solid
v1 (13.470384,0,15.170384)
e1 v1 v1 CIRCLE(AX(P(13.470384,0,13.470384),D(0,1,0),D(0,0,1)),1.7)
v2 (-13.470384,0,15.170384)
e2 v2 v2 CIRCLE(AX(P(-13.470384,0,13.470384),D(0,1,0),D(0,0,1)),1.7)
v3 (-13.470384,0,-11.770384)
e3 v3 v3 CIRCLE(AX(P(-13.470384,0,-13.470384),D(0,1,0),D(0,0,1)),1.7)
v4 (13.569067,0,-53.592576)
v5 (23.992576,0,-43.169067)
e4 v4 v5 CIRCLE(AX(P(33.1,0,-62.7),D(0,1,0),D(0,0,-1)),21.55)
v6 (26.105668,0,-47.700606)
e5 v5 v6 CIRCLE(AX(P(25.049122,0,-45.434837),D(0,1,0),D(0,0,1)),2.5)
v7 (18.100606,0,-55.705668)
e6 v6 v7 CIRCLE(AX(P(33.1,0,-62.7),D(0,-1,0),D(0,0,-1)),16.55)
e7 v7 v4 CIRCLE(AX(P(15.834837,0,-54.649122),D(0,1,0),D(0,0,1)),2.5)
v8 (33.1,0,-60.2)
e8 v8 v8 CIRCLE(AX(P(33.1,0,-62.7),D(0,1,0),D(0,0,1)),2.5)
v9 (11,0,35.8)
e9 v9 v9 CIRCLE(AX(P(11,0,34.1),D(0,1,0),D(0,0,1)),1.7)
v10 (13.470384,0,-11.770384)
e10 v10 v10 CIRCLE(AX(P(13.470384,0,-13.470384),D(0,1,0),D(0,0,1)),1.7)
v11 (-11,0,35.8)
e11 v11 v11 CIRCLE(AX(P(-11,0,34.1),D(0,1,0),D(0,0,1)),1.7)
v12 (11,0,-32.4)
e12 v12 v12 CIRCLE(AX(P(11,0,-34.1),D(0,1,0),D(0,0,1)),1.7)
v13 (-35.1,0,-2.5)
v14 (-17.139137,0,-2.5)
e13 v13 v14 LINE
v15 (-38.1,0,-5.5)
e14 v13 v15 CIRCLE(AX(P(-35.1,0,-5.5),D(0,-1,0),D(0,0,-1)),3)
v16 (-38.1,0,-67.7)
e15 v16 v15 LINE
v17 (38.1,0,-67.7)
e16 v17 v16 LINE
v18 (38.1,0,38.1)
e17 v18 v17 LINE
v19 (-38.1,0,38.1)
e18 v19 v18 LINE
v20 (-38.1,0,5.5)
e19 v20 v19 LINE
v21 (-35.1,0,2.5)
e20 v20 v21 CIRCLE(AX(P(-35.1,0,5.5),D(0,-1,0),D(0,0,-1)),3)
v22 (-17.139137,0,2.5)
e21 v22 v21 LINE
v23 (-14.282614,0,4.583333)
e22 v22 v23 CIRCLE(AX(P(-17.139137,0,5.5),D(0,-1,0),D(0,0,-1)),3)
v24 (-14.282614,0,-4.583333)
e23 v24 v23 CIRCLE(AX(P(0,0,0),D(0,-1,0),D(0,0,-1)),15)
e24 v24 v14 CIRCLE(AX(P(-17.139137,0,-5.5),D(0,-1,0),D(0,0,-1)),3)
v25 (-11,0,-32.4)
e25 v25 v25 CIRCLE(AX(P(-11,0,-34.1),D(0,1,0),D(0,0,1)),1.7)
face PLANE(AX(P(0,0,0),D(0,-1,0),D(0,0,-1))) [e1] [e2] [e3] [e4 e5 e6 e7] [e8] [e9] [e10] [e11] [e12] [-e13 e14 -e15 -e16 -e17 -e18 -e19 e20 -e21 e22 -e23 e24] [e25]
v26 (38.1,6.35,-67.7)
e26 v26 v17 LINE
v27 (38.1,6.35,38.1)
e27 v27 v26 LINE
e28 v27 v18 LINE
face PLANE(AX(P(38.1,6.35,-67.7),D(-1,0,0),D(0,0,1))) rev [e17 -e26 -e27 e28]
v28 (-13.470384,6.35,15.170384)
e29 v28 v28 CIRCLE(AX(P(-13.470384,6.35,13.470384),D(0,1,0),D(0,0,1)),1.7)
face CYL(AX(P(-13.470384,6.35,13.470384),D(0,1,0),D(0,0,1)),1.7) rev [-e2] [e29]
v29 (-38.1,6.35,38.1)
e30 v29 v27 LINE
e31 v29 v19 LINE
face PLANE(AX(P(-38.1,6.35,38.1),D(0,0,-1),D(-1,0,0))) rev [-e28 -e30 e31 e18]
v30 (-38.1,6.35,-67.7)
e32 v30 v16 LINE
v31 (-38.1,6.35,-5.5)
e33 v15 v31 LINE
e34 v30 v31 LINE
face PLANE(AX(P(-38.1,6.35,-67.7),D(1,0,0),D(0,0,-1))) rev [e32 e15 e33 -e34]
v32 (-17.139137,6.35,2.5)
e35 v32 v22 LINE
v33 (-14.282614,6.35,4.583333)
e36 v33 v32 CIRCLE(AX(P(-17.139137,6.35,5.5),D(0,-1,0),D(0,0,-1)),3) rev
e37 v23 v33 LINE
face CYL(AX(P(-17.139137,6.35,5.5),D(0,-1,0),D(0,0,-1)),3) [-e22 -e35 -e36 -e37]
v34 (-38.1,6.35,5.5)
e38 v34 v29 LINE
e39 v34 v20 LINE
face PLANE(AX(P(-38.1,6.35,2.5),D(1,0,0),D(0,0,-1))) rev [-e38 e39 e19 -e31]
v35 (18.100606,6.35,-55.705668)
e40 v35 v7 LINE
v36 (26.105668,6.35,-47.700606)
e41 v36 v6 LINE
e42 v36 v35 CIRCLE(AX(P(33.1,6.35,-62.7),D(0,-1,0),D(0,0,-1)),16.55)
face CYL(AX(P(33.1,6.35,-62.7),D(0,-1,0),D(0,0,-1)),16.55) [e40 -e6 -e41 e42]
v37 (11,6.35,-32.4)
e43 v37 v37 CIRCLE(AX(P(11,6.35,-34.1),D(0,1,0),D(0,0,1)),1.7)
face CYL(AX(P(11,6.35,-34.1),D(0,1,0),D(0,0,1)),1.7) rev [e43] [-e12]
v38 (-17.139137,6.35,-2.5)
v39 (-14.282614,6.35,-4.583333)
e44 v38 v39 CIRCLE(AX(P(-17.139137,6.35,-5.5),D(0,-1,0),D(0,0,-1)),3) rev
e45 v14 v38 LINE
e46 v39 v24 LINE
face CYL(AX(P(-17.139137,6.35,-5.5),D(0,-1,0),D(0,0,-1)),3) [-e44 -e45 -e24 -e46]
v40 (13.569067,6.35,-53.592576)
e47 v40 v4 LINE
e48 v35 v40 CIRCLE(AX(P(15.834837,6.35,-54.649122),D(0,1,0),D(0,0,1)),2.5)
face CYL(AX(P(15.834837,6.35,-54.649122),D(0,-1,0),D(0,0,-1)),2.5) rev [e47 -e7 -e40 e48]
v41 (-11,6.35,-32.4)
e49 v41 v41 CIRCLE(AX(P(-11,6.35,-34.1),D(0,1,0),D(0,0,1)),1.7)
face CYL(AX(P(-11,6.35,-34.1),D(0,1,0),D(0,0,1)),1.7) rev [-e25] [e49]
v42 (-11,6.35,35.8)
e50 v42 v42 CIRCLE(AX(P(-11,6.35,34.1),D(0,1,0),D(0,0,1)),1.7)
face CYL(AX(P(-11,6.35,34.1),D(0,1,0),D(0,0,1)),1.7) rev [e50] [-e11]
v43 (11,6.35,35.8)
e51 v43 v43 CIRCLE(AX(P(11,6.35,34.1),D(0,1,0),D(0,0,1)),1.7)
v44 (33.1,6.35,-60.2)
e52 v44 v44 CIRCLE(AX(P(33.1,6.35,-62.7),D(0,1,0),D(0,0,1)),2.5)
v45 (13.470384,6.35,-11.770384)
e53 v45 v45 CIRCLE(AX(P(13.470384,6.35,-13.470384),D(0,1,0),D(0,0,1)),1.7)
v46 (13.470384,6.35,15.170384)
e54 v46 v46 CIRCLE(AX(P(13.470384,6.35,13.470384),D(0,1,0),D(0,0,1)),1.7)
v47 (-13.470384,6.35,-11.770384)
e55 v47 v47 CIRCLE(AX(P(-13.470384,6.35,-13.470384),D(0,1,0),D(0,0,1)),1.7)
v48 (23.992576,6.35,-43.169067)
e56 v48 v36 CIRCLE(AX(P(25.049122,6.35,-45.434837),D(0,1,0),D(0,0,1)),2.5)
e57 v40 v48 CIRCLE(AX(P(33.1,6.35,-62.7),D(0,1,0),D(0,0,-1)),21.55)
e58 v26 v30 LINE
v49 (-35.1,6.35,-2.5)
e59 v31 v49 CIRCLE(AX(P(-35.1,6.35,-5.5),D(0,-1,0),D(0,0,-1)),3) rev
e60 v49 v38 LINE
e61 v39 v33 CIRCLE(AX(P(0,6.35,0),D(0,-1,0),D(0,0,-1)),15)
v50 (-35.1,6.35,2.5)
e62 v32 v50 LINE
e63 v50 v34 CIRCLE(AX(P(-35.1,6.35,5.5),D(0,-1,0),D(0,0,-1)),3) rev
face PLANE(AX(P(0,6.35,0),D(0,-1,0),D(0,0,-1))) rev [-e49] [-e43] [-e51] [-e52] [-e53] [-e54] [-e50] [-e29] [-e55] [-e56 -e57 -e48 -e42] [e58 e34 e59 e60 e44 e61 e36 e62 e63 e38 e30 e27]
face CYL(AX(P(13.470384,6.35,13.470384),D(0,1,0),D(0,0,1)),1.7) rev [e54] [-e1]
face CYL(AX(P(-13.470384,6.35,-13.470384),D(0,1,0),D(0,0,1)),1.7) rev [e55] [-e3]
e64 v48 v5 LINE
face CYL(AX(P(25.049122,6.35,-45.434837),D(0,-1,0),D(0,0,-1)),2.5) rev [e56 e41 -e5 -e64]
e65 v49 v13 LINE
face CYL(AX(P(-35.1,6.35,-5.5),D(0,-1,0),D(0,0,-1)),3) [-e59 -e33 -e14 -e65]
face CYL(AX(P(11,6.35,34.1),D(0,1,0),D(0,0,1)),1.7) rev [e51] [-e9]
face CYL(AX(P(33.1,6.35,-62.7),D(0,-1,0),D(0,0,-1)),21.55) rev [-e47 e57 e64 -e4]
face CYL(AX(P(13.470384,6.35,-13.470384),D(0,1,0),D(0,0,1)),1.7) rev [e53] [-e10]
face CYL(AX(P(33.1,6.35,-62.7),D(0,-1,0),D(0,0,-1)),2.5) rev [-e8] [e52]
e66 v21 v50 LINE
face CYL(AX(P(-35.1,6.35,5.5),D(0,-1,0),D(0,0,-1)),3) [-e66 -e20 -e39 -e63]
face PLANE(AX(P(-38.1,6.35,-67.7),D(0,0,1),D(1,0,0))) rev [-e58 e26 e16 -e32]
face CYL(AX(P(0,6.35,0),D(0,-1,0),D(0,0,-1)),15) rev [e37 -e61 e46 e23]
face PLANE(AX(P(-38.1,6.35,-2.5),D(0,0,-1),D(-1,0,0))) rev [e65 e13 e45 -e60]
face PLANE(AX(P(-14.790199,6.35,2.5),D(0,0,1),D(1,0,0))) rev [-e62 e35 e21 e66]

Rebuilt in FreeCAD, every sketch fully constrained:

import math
import FreeCAD as App
import Part
import Sketcher
Q = App.Units.Quantity


def edges_at(feature, points):
    """Names of the edges that pass closest to the given points."""
    edges = feature.Shape.Edges
    near = lambda p: min(range(len(edges)), key=lambda i: edges[i].distToShape(Part.Vertex(*p))[0])
    return sorted({f"Edge{near(p) + 1}" for p in points})

doc = App.newDocument("Part")
body = doc.addObject("PartDesign::Body", "Body")

sketch1 = body.newObject("Sketcher::SketchObject", "Sketch")
sketch1.AttachmentSupport = (doc.getObject("XZ_Plane"), [""])
sketch1.MapMode = "FlatFace"
sketch1.addGeometry([
    Part.LineSegment(App.Vector(38.1, -67.7, 0), App.Vector(-38.1, -67.7, 0)),
    Part.LineSegment(App.Vector(-38.1, -67.7, 0), App.Vector(-38.1, -2.5, 0)),
    Part.LineSegment(App.Vector(-38.1, -2.5, 0), App.Vector(-14.790199, -2.5, 0)),
    Part.ArcOfCircle(Part.Circle(App.Vector(0, 0, 0), App.Vector(0, 0, 1), 15), math.radians(-170.405932), math.radians(170.405932)),
    Part.LineSegment(App.Vector(-14.790199, 2.5, 0), App.Vector(-38.1, 2.5, 0)),
    Part.LineSegment(App.Vector(-38.1, 2.5, 0), App.Vector(-38.1, 38.1, 0)),
    Part.LineSegment(App.Vector(-38.1, 38.1, 0), App.Vector(38.1, 38.1, 0)),
    Part.LineSegment(App.Vector(38.1, 38.1, 0), App.Vector(38.1, -67.7, 0)),
    Part.ArcOfCircle(Part.Circle(App.Vector(25.049122, -45.434837, 0), App.Vector(0, 0, 1), 2.5), math.radians(-65), math.radians(115)),
    Part.ArcOfCircle(Part.Circle(App.Vector(33.1, -62.7, 0), App.Vector(0, 0, 1), 21.55), math.radians(115), math.radians(155)),
    Part.ArcOfCircle(Part.Circle(App.Vector(15.834837, -54.649122, 0), App.Vector(0, 0, 1), 2.5), math.radians(155), math.radians(335)),
    Part.ArcOfCircle(Part.Circle(App.Vector(33.1, -62.7, 0), App.Vector(0, 0, 1), 16.55), math.radians(115), math.radians(155)),
    Part.Circle(App.Vector(33.1, -62.7, 0), App.Vector(0, 0, 1), 2.5),
], False)
sketch1.addConstraint([
    Sketcher.Constraint("Coincident", 0, 2, 1, 1),
    Sketcher.Constraint("Coincident", 1, 2, 2, 1),
    Sketcher.Constraint("Coincident", 2, 2, 3, 1),
    Sketcher.Constraint("Coincident", 3, 2, 4, 1),
    Sketcher.Constraint("Coincident", 4, 2, 5, 1),
    Sketcher.Constraint("Coincident", 5, 2, 6, 1),
    Sketcher.Constraint("Coincident", 6, 2, 7, 1),
    Sketcher.Constraint("Coincident", 7, 2, 0, 1),
    Sketcher.Constraint("Tangent", 8, 2, 9, 1),
    Sketcher.Constraint("Tangent", 9, 2, 10, 1),
    Sketcher.Constraint("Tangent", 10, 2, 11, 2),
    Sketcher.Constraint("Tangent", 11, 1, 8, 1),
    Sketcher.Constraint("Horizontal", 0),
    Sketcher.Constraint("Vertical", 1),
    Sketcher.Constraint("Horizontal", 2),
    Sketcher.Constraint("Horizontal", 4),
    Sketcher.Constraint("Vertical", 5),
    Sketcher.Constraint("Horizontal", 6),
    Sketcher.Constraint("Vertical", 7),
    Sketcher.Constraint("Coincident", 3, 3, -1, 1),
    Sketcher.Constraint("Coincident", 11, 3, 9, 3),
    Sketcher.Constraint("Coincident", 12, 3, 9, 3),
    Sketcher.Constraint("Equal", 10, 12),
    Sketcher.Constraint("Symmetric", 1, 2, 4, 2, -1),
    Sketcher.Constraint("Diameter", 12, Q("5 mm")),
    Sketcher.Constraint("Radius", 3, Q("15 mm")),
    Sketcher.Constraint("Radius", 9, Q("21.55 mm")),
    Sketcher.Constraint("DistanceX", 0, 2, 0, 1, Q("76.2 mm")),
    Sketcher.Constraint("DistanceY", 1, 1, 1, 2, Q("65.2 mm")),
    Sketcher.Constraint("DistanceY", 5, 1, 5, 2, Q("35.6 mm")),
    Sketcher.Constraint("DistanceY", 7, 2, 7, 1, Q("105.8 mm")),
    Sketcher.Constraint("DistanceY", 0, 2, 11, 3, Q("5 mm")),
    Sketcher.Constraint("DistanceX", 12, 3, 7, 2, Q("5 mm")),
    Sketcher.Constraint("DistanceX", -1, 1, 9, 3, Q("33.1 mm")),
    Sketcher.Constraint("DistanceY", 10, 2, 8, 2, Q("12.536601 mm")),
    Sketcher.Constraint("DistanceX", 9, 2, 11, 1, Q("12.536601 mm")),
])
pad1 = body.newObject("PartDesign::Pad", "Pad")
pad1.Profile = sketch1
pad1.Length = 6.35
pad1.Reversed = True

sketch2 = body.newObject("Sketcher::SketchObject", "Sketch001")
sketch2.AttachmentSupport = (doc.getObject("XZ_Plane"), [""])
sketch2.MapMode = "FlatFace"
sketch2.AttachmentOffset = App.Placement(App.Vector(0, 0, -6.35), App.Rotation())
sketch2.addGeometry(Part.Circle(App.Vector(13.470384, -13.470384, 0), App.Vector(0, 0, 1), 1.7), False)
sketch2.addConstraint([
    Sketcher.Constraint("Diameter", 0, Q("3.4 mm")),
    Sketcher.Constraint("DistanceX", -1, 1, 0, 3, Q("13.470384 mm")),
    Sketcher.Constraint("DistanceY", 0, 3, -1, 1, Q("13.470384 mm")),
])
doc.recompute()
hole = body.newObject("PartDesign::Hole", "Hole")
hole.Profile = sketch2
hole.ThreadType = "None"
hole.Diameter = 3.4
hole.DepthType = "ThroughAll"
hole.Reversed = True
doc.recompute()

polarpattern = body.newObject("PartDesign::PolarPattern", "PolarPattern")
polarpattern.Originals = [hole]
polarpattern.Axis = (doc.getObject("Y_Axis"), [""])
polarpattern.Angle = 360
polarpattern.Occurrences = 4
body.Tip = polarpattern

sketch3 = body.newObject("Sketcher::SketchObject", "Sketch002")
sketch3.AttachmentSupport = (doc.getObject("XZ_Plane"), [""])
sketch3.MapMode = "FlatFace"
sketch3.AttachmentOffset = App.Placement(App.Vector(0, 0, -6.35), App.Rotation())
sketch3.addGeometry([
    Part.Circle(App.Vector(11, -34.1, 0), App.Vector(0, 0, 1), 1.7),
    Part.Circle(App.Vector(-11, 34.1, 0), App.Vector(0, 0, 1), 1.7),
    Part.Circle(App.Vector(11, 34.1, 0), App.Vector(0, 0, 1), 1.7),
    Part.Circle(App.Vector(-11, -34.1, 0), App.Vector(0, 0, 1), 1.7),
], False)
sketch3.addConstraint([
    Sketcher.Constraint("Equal", 0, 1),
    Sketcher.Constraint("Equal", 1, 2),
    Sketcher.Constraint("Equal", 2, 3),
    Sketcher.Constraint("Symmetric", 0, 3, 1, 3, -1, 1),
    Sketcher.Constraint("Symmetric", 2, 3, 3, 3, -1, 1),
    Sketcher.Constraint("Symmetric", 1, 3, 2, 3, -2),
    Sketcher.Constraint("Diameter", 0, Q("3.4 mm")),
    Sketcher.Constraint("DistanceX", -1, 1, 0, 3, Q("11 mm")),
    Sketcher.Constraint("DistanceY", 0, 3, -1, 1, Q("34.1 mm")),
])
doc.recompute()
hole2 = body.newObject("PartDesign::Hole", "Hole001")
hole2.Profile = sketch3
hole2.ThreadType = "None"
hole2.Diameter = 3.4
hole2.DepthType = "ThroughAll"
hole2.Reversed = True
doc.recompute()

fillet = body.newObject("PartDesign::Fillet", "Fillet")
fillet.Base = (hole2, edges_at(hole2, [
    (-14.79, 3.175, -2.5),
    (-38.1, 3.175, -2.5),
    (-38.1, 3.175, 2.5),
    (-14.79, 3.175, 2.5),
]))
fillet.Radius = 3

doc.recompute()
